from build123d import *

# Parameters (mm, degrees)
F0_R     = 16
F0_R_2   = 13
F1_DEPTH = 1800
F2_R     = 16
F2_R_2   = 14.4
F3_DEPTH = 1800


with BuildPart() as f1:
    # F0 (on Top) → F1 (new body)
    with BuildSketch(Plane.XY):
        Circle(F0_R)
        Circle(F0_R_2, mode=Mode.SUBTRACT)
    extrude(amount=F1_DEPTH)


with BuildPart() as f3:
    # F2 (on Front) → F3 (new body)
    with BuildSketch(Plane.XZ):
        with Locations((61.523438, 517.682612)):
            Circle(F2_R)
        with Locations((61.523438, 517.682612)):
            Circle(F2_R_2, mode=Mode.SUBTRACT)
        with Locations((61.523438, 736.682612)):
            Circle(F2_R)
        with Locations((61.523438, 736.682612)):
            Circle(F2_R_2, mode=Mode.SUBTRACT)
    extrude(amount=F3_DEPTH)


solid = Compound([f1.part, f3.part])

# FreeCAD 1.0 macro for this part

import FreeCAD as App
import Part
import Sketcher

V = App.Vector

doc = App.newDocument("Part")
body = doc.addObject("PartDesign::Body", "Body")

# Sketch on XY plane
sketch1 = body.newObject("Sketcher::SketchObject", "Sketch")
sketch1.AttachmentSupport = (doc.getObject("XY_Plane"), [""])
sketch1.MapMode = "FlatFace"
sketch1.addGeometry([
    Part.Circle(V(0, 0, 0), V(0, 0, 1), 16),
    Part.Circle(V(0, 0, 0), V(0, 0, 1), 13),
], False)
sketch1.addConstraint([
    Sketcher.Constraint("Coincident", 0, 3, -1, 1),
    Sketcher.Constraint("Coincident", 1, 3, -1, 1),
    Sketcher.Constraint("Diameter", 0, 32.0),
    Sketcher.Constraint("Diameter", 1, 26.0),
])
pad1 = body.newObject("PartDesign::Pad", "Pad")
pad1.Profile = sketch1
pad1.Length = 1800
body2 = doc.addObject("PartDesign::Body", "Body001")
body2.AllowCompound = True

# Sketch on XZ plane
sketch2 = body2.newObject("Sketcher::SketchObject", "Sketch001")
sketch2.AttachmentSupport = (doc.getObject("XZ_Plane001"), [""])
sketch2.MapMode = "FlatFace"
sketch2.addGeometry([
    Part.Circle(V(62, 518, 0), V(0, 0, 1), 16),
    Part.Circle(V(62, 518, 0), V(0, 0, 1), 14),
    Part.Circle(V(62, 737, 0), V(0, 0, 1), 16),
    Part.Circle(V(62, 737, 0), V(0, 0, 1), 14),
], False)
sketch2.addConstraint([
    Sketcher.Constraint("Coincident", 1, 3, 0, 3),
    Sketcher.Constraint("Coincident", 3, 3, 2, 3),
    Sketcher.Constraint("Equal", 0, 2),
    Sketcher.Constraint("Equal", 1, 3),
    Sketcher.Constraint("Vertical", 1, 3, 2, 3),
    Sketcher.Constraint("Diameter", 0, 32.0),
    Sketcher.Constraint("Diameter", 1, 28.8),
    Sketcher.Constraint("DistanceY", 0, 3, 2, 3, 219.0),
    Sketcher.Constraint("DistanceY", -1, 1, 0, 3, 517.682612),
    Sketcher.Constraint("DistanceX", -1, 1, 0, 3, 61.523438),
])
pad2 = body2.newObject("PartDesign::Pad", "Pad001")
pad2.Profile = sketch2
pad2.Length = 1800

doc.recompute()
